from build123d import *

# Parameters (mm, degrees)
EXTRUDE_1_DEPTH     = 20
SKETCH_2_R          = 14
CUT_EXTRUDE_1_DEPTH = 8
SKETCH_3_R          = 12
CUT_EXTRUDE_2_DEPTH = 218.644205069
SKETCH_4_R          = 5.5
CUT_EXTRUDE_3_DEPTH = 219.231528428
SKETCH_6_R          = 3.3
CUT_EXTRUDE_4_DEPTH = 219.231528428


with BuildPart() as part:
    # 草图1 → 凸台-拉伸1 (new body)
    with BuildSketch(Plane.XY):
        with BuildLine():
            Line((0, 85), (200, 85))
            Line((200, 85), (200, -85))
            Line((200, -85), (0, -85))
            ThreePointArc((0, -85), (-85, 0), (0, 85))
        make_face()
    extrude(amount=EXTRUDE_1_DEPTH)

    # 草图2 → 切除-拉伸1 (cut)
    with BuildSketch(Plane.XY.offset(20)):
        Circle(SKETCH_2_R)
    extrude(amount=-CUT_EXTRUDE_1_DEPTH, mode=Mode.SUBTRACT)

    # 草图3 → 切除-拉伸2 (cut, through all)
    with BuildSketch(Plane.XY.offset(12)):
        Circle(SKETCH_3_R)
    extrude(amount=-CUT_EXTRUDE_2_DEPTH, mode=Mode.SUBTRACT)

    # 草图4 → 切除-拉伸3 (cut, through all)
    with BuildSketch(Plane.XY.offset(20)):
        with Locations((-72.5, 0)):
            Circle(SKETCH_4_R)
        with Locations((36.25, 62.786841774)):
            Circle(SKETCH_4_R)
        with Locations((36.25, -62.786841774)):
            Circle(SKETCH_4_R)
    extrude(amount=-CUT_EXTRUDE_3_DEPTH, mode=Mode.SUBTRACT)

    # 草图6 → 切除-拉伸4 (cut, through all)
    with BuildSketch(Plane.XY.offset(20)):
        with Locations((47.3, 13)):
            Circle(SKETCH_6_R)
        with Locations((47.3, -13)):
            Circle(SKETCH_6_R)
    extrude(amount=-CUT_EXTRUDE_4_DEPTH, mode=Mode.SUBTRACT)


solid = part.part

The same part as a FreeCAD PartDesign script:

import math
import FreeCAD as App
import Part
import Sketcher

V = App.Vector

doc = App.newDocument("Part")
body = doc.addObject("PartDesign::Body", "Body")

# Sketch on XY plane
sketch1 = doc.addObject("Sketcher::SketchObject", "Sketch")
body.addObject(sketch1)
sketch1.AttachmentSupport = (doc.XY_Plane, [""])
sketch1.MapMode = "FlatFace"
sketch1.addGeometry([
    Part.LineSegment(V(200, 85, 0), V(0, 85, 0)),
    Part.ArcOfCircle(Part.Circle(V(0, 0, 0), V(0, 0, 1), 85), math.radians(90), math.radians(270)),
    Part.LineSegment(V(0, -85, 0), V(200, -85, 0)),
    Part.LineSegment(V(200, -85, 0), V(200, 85, 0)),
], False)
sketch1.addConstraint([
    Sketcher.Constraint("Tangent", 0, 2, 1, 1),
    Sketcher.Constraint("Tangent", 1, 2, 2, 1),
    Sketcher.Constraint("Coincident", 2, 2, 3, 1),
    Sketcher.Constraint("Coincident", 3, 2, 0, 1),
    Sketcher.Constraint("Horizontal", 0),
    Sketcher.Constraint("Horizontal", 2),
    Sketcher.Constraint("Vertical", 3),
    Sketcher.Constraint("Coincident", 1, 3, -1, 1),
    Sketcher.Constraint("Radius", 1, 85.0),
    Sketcher.Constraint("DistanceX", 0, 2, 0, 1, 200.0),
])
pad1 = doc.addObject("PartDesign::Pad", "Pad")
body.addObject(pad1)
pad1.Profile = sketch1
pad1.Length = 20

# Sketch on XY plane
sketch2 = doc.addObject("Sketcher::SketchObject", "Sketch001")
body.addObject(sketch2)
sketch2.AttachmentSupport = (doc.XY_Plane, [""])
sketch2.MapMode = "FlatFace"
sketch2.AttachmentOffset = App.Placement(V(0, 0, 20), App.Rotation())
sketch2.addGeometry(Part.Circle(V(0, 0, 0), V(0, 0, 1), 14), False)
sketch2.addConstraint([
    Sketcher.Constraint("Coincident", 0, 3, -1, 1),
    Sketcher.Constraint("Diameter", 0, 28.0),
])
pocket1 = doc.addObject("PartDesign::Pocket", "Pocket")
body.addObject(pocket1)
pocket1.Profile = sketch2
pocket1.Length = 8

# Sketch on XY plane
sketch3 = doc.addObject("Sketcher::SketchObject", "Sketch002")
body.addObject(sketch3)
sketch3.AttachmentSupport = (doc.XY_Plane, [""])
sketch3.MapMode = "FlatFace"
sketch3.AttachmentOffset = App.Placement(V(0, 0, 12), App.Rotation())
sketch3.addGeometry(Part.Circle(V(0, 0, 0), V(0, 0, 1), 12), False)
sketch3.addConstraint([
    Sketcher.Constraint("Coincident", 0, 3, -1, 1),
    Sketcher.Constraint("Diameter", 0, 24.0),
])
pocket2 = doc.addObject("PartDesign::Pocket", "Pocket001")
body.addObject(pocket2)
pocket2.Profile = sketch3
pocket2.Type = "ThroughAll"

# Sketch on XY plane
sketch4 = doc.addObject("Sketcher::SketchObject", "Sketch003")
body.addObject(sketch4)
sketch4.AttachmentSupport = (doc.XY_Plane, [""])
sketch4.MapMode = "FlatFace"
sketch4.AttachmentOffset = App.Placement(V(0, 0, 20), App.Rotation())
sketch4.addGeometry([
    Part.Circle(V(-72, 0, 0), V(0, 0, 1), 6),
    Part.Circle(V(36, 63, 0), V(0, 0, 1), 6),
    Part.Circle(V(36, -63, 0), V(0, 0, 1), 6),
], False)
sketch4.addConstraint([
    Sketcher.Constraint("Equal", 0, 1),
    Sketcher.Constraint("Equal", 1, 2),
    Sketcher.Constraint("Symmetric", 1, 3, 2, 3, -1),
    Sketcher.Constraint("PointOnObject", 0, 3, -1),
    Sketcher.Constraint("Diameter", 0, 11.0),
    Sketcher.Constraint("DistanceX", 0, 3, -1, 1, 72.5),
    Sketcher.Constraint("DistanceX", -1, 1, 1, 3, 36.25),
    Sketcher.Constraint("DistanceY", -1, 1, 1, 3, 62.786842),
])
pocket3 = doc.addObject("PartDesign::Pocket", "Pocket002")
body.addObject(pocket3)
pocket3.Profile = sketch4
pocket3.Type = "ThroughAll"

# Sketch on XY plane
sketch5 = doc.addObject("Sketcher::SketchObject", "Sketch004")
body.addObject(sketch5)
sketch5.AttachmentSupport = (doc.XY_Plane, [""])
sketch5.MapMode = "FlatFace"
sketch5.AttachmentOffset = App.Placement(V(0, 0, 20), App.Rotation())
sketch5.addGeometry([
    Part.Circle(V(47.3, 13, 0), V(0, 0, 1), 3.3),
    Part.Circle(V(47.3, -13, 0), V(0, 0, 1), 3.3),
], False)
sketch5.addConstraint([
    Sketcher.Constraint("Equal", 0, 1),
    Sketcher.Constraint("Symmetric", 0, 3, 1, 3, -1),
    Sketcher.Constraint("Diameter", 0, 6.6),
    Sketcher.Constraint("DistanceY", -1, 1, 0, 3, 13.0),
    Sketcher.Constraint("DistanceX", -1, 1, 0, 3, 47.3),
])
pocket4 = doc.addObject("PartDesign::Pocket", "Pocket003")
body.addObject(pocket4)
pocket4.Profile = sketch5
pocket4.Type = "ThroughAll"

doc.recompute()
